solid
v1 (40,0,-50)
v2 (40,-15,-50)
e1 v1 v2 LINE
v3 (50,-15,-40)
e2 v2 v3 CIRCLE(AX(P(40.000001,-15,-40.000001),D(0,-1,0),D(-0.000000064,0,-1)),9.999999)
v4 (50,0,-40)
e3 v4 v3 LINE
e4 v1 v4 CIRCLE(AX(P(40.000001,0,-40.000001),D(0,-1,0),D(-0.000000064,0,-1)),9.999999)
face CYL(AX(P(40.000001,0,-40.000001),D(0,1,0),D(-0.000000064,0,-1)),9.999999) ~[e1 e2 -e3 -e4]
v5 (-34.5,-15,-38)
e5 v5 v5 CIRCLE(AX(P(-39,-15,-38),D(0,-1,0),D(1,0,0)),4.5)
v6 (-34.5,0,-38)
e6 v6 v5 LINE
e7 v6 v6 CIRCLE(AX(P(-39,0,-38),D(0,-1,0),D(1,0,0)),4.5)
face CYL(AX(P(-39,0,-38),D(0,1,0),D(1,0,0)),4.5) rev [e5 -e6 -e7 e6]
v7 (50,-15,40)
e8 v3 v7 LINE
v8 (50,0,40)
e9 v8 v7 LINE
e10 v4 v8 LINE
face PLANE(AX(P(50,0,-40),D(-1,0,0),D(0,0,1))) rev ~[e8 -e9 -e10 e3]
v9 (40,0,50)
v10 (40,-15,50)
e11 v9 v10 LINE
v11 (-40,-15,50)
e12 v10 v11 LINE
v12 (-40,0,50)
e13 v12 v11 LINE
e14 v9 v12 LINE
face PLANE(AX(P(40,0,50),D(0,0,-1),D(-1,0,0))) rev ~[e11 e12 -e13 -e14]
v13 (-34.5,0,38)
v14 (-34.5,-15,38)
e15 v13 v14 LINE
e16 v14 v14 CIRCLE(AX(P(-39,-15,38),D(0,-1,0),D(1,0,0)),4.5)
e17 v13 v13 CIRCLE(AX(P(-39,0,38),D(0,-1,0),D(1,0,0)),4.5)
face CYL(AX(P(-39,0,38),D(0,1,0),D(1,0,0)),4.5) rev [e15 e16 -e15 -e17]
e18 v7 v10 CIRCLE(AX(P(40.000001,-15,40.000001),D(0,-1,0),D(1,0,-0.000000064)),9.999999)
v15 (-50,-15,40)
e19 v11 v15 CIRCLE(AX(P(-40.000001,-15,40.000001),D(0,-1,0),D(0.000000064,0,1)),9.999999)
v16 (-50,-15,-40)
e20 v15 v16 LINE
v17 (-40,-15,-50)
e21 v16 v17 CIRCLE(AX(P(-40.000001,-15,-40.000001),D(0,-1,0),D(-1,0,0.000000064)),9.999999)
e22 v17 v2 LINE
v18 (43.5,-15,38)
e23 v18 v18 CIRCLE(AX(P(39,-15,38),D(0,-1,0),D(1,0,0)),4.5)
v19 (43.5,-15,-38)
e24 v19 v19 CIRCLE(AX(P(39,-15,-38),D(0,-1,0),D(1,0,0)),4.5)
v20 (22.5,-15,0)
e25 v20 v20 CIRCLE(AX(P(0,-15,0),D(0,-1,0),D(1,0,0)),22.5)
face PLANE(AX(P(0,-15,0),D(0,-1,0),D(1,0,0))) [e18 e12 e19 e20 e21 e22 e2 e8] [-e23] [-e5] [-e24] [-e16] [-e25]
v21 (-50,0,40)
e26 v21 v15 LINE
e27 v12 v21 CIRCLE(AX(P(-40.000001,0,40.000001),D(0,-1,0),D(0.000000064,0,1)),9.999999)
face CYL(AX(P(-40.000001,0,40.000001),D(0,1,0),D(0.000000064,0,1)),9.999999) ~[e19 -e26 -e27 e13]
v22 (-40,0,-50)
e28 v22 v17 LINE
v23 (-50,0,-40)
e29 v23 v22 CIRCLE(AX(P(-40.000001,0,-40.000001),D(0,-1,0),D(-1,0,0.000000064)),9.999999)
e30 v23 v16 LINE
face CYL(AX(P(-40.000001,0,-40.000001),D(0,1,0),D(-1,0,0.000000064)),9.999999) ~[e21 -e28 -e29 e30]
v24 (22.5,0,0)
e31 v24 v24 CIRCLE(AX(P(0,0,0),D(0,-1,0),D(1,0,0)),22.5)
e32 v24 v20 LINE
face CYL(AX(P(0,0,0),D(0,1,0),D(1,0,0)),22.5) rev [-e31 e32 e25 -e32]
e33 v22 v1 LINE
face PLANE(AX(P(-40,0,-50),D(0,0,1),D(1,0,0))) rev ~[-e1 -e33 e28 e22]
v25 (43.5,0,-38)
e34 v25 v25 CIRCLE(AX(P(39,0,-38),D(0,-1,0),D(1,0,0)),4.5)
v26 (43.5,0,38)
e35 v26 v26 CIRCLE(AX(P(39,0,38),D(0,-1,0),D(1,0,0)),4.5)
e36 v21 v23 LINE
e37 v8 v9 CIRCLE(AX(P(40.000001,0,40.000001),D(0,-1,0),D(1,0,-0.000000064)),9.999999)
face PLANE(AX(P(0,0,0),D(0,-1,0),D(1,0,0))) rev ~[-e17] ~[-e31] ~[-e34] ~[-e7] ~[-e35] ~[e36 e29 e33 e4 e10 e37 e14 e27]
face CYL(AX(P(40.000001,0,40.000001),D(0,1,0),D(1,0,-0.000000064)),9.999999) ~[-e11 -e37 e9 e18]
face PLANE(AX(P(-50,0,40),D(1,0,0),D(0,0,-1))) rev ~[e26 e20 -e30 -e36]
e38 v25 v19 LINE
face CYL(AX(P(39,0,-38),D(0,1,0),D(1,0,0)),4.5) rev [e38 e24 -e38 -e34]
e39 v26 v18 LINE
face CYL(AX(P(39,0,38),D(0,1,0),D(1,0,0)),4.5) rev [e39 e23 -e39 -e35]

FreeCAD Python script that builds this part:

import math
import FreeCAD as App
import Part
import Sketcher
from FreeCAD import Vector
Q = App.Units.Quantity

doc = App.newDocument("Part")
body = doc.addObject("PartDesign::Body", "Body")

sketch1 = body.newObject("Sketcher::SketchObject", "Sketch")
sketch1.AttachmentSupport = (doc.getObject("XZ_Plane"), [""])
sketch1.MapMode = "FlatFace"
sketch1.addGeometry(Part.LineSegment(Vector(40, 50, 0), Vector(-40, 50, 0)), False)
sketch1.addGeometry(Part.ArcOfCircle(Part.Circle(Vector(-40.000001, 40.000001, 0), Vector(0, 0, 1), 9.999999), math.radians(89.999996), math.radians(180.000004)), False)
sketch1.addGeometry(Part.LineSegment(Vector(-50, 40, 0), Vector(-50, -40, 0)), False)
sketch1.addGeometry(Part.ArcOfCircle(Part.Circle(Vector(-40.000001, -40.000001, 0), Vector(0, 0, 1), 9.999999), math.radians(179.999996), math.radians(270.000004)), False)
sketch1.addGeometry(Part.LineSegment(Vector(-40, -50, 0), Vector(40, -50, 0)), False)
sketch1.addGeometry(Part.ArcOfCircle(Part.Circle(Vector(40.000001, -40.000001, 0), Vector(0, 0, 1), 9.999999), math.radians(-90.000004), math.radians(0.000004)), False)
sketch1.addGeometry(Part.LineSegment(Vector(50, -40, 0), Vector(50, 40, 0)), False)
sketch1.addGeometry(Part.ArcOfCircle(Part.Circle(Vector(40.000001, 40.000001, 0), Vector(0, 0, 1), 9.999999), math.radians(-0.000004), math.radians(90.000004)), False)
sketch1.addGeometry(Part.Circle(Vector(-39, -38, 0), Vector(0, 0, 1), 4.5), False)
sketch1.addGeometry(Part.Circle(Vector(39, -38, 0), Vector(0, 0, 1), 4.5), False)
sketch1.addGeometry(Part.Circle(Vector(-39, 38, 0), Vector(0, 0, 1), 4.5), False)
sketch1.addGeometry(Part.Circle(Vector(0, 0, 0), Vector(0, 0, 1), 22.5), False)
sketch1.addGeometry(Part.Circle(Vector(39, 38, 0), Vector(0, 0, 1), 4.5), False)
sketch1.addConstraint(Sketcher.Constraint("Tangent", 0, 2, 1, 1))
sketch1.addConstraint(Sketcher.Constraint("Tangent", 1, 2, 2, 1))
sketch1.addConstraint(Sketcher.Constraint("Tangent", 2, 2, 3, 1))
sketch1.addConstraint(Sketcher.Constraint("Tangent", 3, 2, 4, 1))
sketch1.addConstraint(Sketcher.Constraint("Tangent", 4, 2, 5, 1))
sketch1.addConstraint(Sketcher.Constraint("Tangent", 5, 2, 6, 1))
sketch1.addConstraint(Sketcher.Constraint("Tangent", 6, 2, 7, 1))
sketch1.addConstraint(Sketcher.Constraint("Tangent", 7, 2, 0, 1))
sketch1.addConstraint(Sketcher.Constraint("Horizontal", 0))
sketch1.addConstraint(Sketcher.Constraint("Vertical", 2))
sketch1.addConstraint(Sketcher.Constraint("Horizontal", 4))
sketch1.addConstraint(Sketcher.Constraint("Vertical", 6))
sketch1.addConstraint(Sketcher.Constraint("Coincident", 11, 3, -1, 1))
sketch1.addConstraint(Sketcher.Constraint("Equal", 1, 3))
sketch1.addConstraint(Sketcher.Constraint("Equal", 3, 5))
sketch1.addConstraint(Sketcher.Constraint("Equal", 5, 7))
sketch1.addConstraint(Sketcher.Constraint("Equal", 8, 9))
sketch1.addConstraint(Sketcher.Constraint("Equal", 9, 10))
sketch1.addConstraint(Sketcher.Constraint("Equal", 10, 12))
sketch1.addConstraint(Sketcher.Constraint("Symmetric", 1, 3, 5, 3, -1, 1))
sketch1.addConstraint(Sketcher.Constraint("Symmetric", 9, 3, 10, 3, -1, 1))
sketch1.addConstraint(Sketcher.Constraint("Symmetric", 8, 3, 12, 3, -1, 1))
sketch1.addConstraint(Sketcher.Constraint("Symmetric", 8, 3, 9, 3, -2))
sketch1.addConstraint(Sketcher.Constraint("Equal", 4, 2))
sketch1.addConstraint(Sketcher.Constraint("Diameter", 8, Q("9 mm")))
sketch1.addConstraint(Sketcher.Constraint("Diameter", 11, Q("45 mm")))
sketch1.addConstraint(Sketcher.Constraint("Radius", 1, Q("9.999999 mm")))
sketch1.addConstraint(Sketcher.Constraint("DistanceX", 0, 2, 0, 1, Q("80 mm")))
sketch1.addConstraint(Sketcher.Constraint("DistanceX", 8, 3, -1, 1, Q("39 mm")))
sketch1.addConstraint(Sketcher.Constraint("DistanceY", 8, 3, -1, 1, Q("38 mm")))
pad1 = body.newObject("PartDesign::Pad", "Pad")
pad1.Profile = sketch1
pad1.Length = 15

doc.recompute()
